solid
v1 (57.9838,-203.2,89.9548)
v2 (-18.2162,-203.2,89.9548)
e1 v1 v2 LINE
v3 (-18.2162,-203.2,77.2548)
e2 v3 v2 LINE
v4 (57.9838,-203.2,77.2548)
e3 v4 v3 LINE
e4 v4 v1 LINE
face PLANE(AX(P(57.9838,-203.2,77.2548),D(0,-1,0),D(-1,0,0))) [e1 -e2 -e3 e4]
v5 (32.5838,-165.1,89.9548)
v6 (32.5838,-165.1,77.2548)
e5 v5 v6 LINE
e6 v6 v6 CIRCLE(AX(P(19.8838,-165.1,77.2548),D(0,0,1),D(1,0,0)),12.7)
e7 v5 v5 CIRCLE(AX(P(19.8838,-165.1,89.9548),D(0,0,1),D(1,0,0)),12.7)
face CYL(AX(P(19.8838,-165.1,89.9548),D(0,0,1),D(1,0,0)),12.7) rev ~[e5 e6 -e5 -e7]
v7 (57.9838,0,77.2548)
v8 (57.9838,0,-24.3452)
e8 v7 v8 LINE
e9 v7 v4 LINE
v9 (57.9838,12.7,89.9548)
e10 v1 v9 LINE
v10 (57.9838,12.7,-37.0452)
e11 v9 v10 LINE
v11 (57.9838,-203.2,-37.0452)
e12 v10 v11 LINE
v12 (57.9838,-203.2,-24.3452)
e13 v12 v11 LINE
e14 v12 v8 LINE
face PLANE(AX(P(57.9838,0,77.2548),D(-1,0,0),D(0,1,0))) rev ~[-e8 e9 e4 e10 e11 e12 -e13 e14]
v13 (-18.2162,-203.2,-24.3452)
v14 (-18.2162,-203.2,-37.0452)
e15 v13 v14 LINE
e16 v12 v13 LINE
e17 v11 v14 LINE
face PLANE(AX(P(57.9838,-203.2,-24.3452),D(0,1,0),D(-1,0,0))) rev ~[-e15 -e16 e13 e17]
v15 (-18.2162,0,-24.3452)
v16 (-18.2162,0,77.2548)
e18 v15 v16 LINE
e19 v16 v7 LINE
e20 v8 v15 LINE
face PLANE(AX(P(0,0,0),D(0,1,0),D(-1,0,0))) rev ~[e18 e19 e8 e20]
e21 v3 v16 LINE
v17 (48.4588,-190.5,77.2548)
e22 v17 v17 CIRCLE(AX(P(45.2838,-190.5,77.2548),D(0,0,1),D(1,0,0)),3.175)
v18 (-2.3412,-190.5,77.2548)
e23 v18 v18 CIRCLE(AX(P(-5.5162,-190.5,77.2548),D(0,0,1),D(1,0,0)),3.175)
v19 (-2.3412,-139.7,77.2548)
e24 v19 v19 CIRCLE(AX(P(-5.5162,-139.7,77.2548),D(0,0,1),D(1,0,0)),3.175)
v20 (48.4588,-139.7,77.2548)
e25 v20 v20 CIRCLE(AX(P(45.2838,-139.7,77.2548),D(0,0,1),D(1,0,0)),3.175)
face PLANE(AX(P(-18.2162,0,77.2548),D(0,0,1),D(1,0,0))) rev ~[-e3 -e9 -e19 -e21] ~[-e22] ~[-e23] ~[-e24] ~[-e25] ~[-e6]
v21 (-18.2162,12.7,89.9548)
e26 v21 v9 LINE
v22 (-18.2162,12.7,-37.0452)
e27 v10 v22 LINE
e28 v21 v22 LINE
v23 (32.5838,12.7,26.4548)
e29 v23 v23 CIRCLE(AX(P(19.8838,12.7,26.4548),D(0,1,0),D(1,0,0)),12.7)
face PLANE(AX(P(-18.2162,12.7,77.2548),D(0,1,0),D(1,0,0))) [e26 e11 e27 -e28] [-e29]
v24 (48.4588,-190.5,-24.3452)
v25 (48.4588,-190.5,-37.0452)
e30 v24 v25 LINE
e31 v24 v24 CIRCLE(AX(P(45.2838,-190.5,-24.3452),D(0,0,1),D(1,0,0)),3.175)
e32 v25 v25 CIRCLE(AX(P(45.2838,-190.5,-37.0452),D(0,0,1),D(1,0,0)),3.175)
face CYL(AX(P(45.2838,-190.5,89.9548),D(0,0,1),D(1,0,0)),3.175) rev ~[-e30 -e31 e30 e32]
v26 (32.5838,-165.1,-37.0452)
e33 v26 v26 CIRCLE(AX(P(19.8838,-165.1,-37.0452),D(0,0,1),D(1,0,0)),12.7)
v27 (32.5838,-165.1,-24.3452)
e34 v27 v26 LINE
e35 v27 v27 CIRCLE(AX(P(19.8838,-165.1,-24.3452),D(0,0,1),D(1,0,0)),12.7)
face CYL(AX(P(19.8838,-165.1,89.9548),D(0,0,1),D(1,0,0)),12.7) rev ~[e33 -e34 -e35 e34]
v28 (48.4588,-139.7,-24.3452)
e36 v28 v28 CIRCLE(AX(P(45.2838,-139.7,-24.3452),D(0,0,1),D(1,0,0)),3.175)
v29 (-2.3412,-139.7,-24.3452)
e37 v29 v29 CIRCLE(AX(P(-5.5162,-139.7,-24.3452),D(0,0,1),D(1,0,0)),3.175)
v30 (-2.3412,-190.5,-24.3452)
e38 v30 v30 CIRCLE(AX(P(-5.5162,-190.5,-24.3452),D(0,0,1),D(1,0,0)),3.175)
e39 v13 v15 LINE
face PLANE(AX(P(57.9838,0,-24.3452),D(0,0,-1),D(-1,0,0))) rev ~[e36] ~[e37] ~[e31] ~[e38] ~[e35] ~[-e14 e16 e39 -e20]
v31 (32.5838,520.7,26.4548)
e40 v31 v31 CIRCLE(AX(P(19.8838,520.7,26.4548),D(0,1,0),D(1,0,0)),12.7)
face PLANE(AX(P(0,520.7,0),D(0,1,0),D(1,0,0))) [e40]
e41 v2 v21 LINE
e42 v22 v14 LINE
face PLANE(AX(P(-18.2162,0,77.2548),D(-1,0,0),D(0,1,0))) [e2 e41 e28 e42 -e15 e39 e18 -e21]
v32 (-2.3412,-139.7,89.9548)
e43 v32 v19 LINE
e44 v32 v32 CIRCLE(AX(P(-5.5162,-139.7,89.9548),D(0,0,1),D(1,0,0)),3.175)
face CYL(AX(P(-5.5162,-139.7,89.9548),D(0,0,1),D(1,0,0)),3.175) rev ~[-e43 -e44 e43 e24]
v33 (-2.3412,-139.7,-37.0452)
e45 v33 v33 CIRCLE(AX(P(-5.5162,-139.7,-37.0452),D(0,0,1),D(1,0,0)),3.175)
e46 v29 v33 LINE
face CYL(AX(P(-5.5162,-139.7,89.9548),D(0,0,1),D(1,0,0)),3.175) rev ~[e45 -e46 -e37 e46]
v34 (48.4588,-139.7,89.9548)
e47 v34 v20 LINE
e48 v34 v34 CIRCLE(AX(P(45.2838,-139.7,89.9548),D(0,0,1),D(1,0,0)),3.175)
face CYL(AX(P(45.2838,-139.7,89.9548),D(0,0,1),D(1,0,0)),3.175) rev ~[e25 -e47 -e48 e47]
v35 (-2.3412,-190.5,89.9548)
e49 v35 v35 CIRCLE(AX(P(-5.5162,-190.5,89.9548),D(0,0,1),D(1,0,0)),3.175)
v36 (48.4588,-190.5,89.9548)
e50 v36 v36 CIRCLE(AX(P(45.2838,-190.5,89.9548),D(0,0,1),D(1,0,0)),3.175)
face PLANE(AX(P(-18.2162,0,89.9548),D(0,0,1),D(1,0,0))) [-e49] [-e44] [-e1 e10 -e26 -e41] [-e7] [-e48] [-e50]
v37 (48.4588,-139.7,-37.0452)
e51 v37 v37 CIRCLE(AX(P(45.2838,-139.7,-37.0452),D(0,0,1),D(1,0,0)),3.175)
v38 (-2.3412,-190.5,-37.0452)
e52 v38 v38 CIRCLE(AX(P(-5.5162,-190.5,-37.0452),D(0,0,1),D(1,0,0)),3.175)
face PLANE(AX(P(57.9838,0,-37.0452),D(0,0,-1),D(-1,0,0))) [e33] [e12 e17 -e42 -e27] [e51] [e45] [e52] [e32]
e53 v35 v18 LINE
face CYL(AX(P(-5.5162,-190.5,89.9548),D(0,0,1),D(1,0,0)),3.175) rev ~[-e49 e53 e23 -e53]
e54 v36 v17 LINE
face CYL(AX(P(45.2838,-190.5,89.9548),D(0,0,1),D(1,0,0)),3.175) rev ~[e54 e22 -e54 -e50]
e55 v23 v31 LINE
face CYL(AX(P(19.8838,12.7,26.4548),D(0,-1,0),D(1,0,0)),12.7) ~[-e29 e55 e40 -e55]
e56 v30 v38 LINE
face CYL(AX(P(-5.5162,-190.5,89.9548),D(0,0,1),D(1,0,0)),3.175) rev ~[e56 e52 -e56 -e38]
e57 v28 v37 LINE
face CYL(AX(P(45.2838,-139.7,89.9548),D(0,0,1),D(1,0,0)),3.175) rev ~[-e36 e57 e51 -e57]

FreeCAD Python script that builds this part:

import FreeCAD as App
import Part
import Sketcher
Q = App.Units.Quantity


def add_polygon(sketch, points):
    """Adds a closed chain of lines whose ends are joined by coincident constraints."""
    first, n = sketch.GeometryCount, len(points)
    for a, b in zip(points, points[1:] + points[:1]):
        sketch.addGeometry(Part.LineSegment(App.Vector(*a, 0), App.Vector(*b, 0)), False)
    for i in range(n):
        sketch.addConstraint(Sketcher.Constraint("Coincident", first + i, 2, first + (i + 1) % n, 1))

doc = App.newDocument("Part")
body = doc.addObject("PartDesign::Body", "Body")

# Sketch on XZ plane
sketch1 = body.newObject("Sketcher::SketchObject", "Sketch")
sketch1.AttachmentSupport = (doc.getObject("XZ_Plane"), [""])
sketch1.MapMode = "FlatFace"
add_polygon(sketch1, [(-18.2162, -24.3452), (-18.2162, 77.2548), (57.9838, 77.2548), (57.9838, -24.3452)])  # lines 0-3
sketch1.addConstraint(Sketcher.Constraint("Vertical", 0))
sketch1.addConstraint(Sketcher.Constraint("Horizontal", 1))
sketch1.addConstraint(Sketcher.Constraint("Vertical", 2))
sketch1.addConstraint(Sketcher.Constraint("Horizontal", 3))
sketch1.addConstraint(Sketcher.Constraint("DistanceX", 1, 1, 1, 2, Q("3 in")))
sketch1.addConstraint(Sketcher.Constraint("DistanceY", 0, 1, 0, 2, Q("4 in")))
sketch1.addConstraint(Sketcher.Constraint("DistanceX", 0, 2, -1, 1, 18.2162))
sketch1.addConstraint(Sketcher.Constraint("DistanceY", -1, 1, 0, 2, 77.2548))
pad1 = body.newObject("PartDesign::Pad", "Pad")
pad1.Profile = sketch1
pad1.Length = Q("0.5 in")
pad1.Reversed = True

# Sketch on XY plane
sketch2 = body.newObject("Sketcher::SketchObject", "Sketch001")
sketch2.AttachmentSupport = (doc.getObject("XY_Plane"), [""])
sketch2.MapMode = "FlatFace"
sketch2.AttachmentOffset = App.Placement(App.Vector(0, 0, -24.3452), App.Rotation())
add_polygon(sketch2, [(-18.2162, -203.2), (-18.2162, 12.7), (57.9838, 12.7), (57.9838, -203.2)])  # lines 0-3
sketch2.addConstraint(Sketcher.Constraint("Vertical", 0))
sketch2.addConstraint(Sketcher.Constraint("Horizontal", 1))
sketch2.addConstraint(Sketcher.Constraint("Vertical", 2))
sketch2.addConstraint(Sketcher.Constraint("Horizontal", 3))
sketch2.addConstraint(Sketcher.Constraint("DistanceY", 2, 2, -1, 1, Q("8 in")))
sketch2.addConstraint(Sketcher.Constraint("DistanceX", 1, 1, 1, 2, Q("3 in")))
sketch2.addConstraint(Sketcher.Constraint("DistanceY", 0, 1, 0, 2, Q("8.5 in")))
sketch2.addConstraint(Sketcher.Constraint("DistanceX", 0, 2, -1, 1, 18.2162))
pad2 = body.newObject("PartDesign::Pad", "Pad001")
pad2.Profile = sketch2
pad2.Length = Q("0.5 in")
pad2.Reversed = True

# Sketch on XY plane
sketch3 = body.newObject("Sketcher::SketchObject", "Sketch002")
sketch3.AttachmentSupport = (doc.getObject("XY_Plane"), [""])
sketch3.MapMode = "FlatFace"
sketch3.AttachmentOffset = App.Placement(App.Vector(0, 0, 77.2548), App.Rotation())
add_polygon(sketch3, [(-18.2162, 12.7), (-18.2162, -203.2), (57.9838, -203.2), (57.9838, 12.7)])  # lines 0-3
sketch3.addConstraint(Sketcher.Constraint("Vertical", 0))
sketch3.addConstraint(Sketcher.Constraint("Horizontal", 1))
sketch3.addConstraint(Sketcher.Constraint("Vertical", 2))
sketch3.addConstraint(Sketcher.Constraint("Horizontal", 3))
sketch3.addConstraint(Sketcher.Constraint("DistanceX", 1, 1, 1, 2, Q("3 in")))
sketch3.addConstraint(Sketcher.Constraint("DistanceY", 0, 2, 0, 1, Q("8.5 in")))
sketch3.addConstraint(Sketcher.Constraint("DistanceY", 0, 2, -1, 1, Q("8 in")))
sketch3.addConstraint(Sketcher.Constraint("DistanceX", 0, 2, -1, 1, 18.2162))
pad3 = body.newObject("PartDesign::Pad", "Pad002")
pad3.Profile = sketch3
pad3.Length = Q("0.5 in")

# Sketch on XZ plane
sketch4 = body.newObject("Sketcher::SketchObject", "Sketch003")
sketch4.AttachmentSupport = (doc.getObject("XZ_Plane"), [""])
sketch4.MapMode = "FlatFace"
sketch4.AttachmentOffset = App.Placement(App.Vector(0, 0, -0.5 * 25.4), App.Rotation())
sketch4.addGeometry(Part.Circle(App.Vector(19.8838, 26.4548, 0), App.Vector(0, 0, 1), 12.7), False)
sketch4.addConstraint(Sketcher.Constraint("Diameter", 0, Q("1 in")))
sketch4.addConstraint(Sketcher.Constraint("DistanceX", -1, 1, 0, 3, 19.8838))
sketch4.addConstraint(Sketcher.Constraint("DistanceY", -1, 1, 0, 3, 26.4548))
pad4 = body.newObject("PartDesign::Pad", "Pad003")
pad4.Profile = sketch4
pad4.Length = Q("20 in")
pad4.Reversed = True

# Sketch on XY plane
sketch5 = body.newObject("Sketcher::SketchObject", "Sketch004")
sketch5.AttachmentSupport = (doc.getObject("XY_Plane"), [""])
sketch5.MapMode = "FlatFace"
sketch5.AttachmentOffset = App.Placement(App.Vector(0, 0, 89.9548), App.Rotation())
sketch5.addGeometry(Part.Circle(App.Vector(19.8838, -165.1, 0), App.Vector(0, 0, 1), 12.7), False)
sketch5.addConstraint(Sketcher.Constraint("Diameter", 0, Q("1 in")))
sketch5.addConstraint(Sketcher.Constraint("DistanceY", 0, 3, -1, 1, Q("6.5 in")))
sketch5.addConstraint(Sketcher.Constraint("DistanceX", -1, 1, 0, 3, 19.8838))
pocket1 = body.newObject("PartDesign::Pocket", "Pocket")
pocket1.Profile = sketch5
pocket1.Type = "ThroughAll"

# Sketch on XY plane
sketch6 = body.newObject("Sketcher::SketchObject", "Sketch005")
sketch6.AttachmentSupport = (doc.getObject("XY_Plane"), [""])
sketch6.MapMode = "FlatFace"
sketch6.AttachmentOffset = App.Placement(App.Vector(0, 0, 89.9548), App.Rotation())
sketch6.addGeometry(Part.Circle(App.Vector(-5.5162, -139.7, 0), App.Vector(0, 0, 1), 3.175), False)
sketch6.addGeometry(Part.Circle(App.Vector(45.2838, -139.7, 0), App.Vector(0, 0, 1), 3.175), False)
sketch6.addGeometry(Part.Circle(App.Vector(45.2838, -190.5, 0), App.Vector(0, 0, 1), 3.175), False)
sketch6.addGeometry(Part.Circle(App.Vector(-5.5162, -190.5, 0), App.Vector(0, 0, 1), 3.175), False)
sketch6.addConstraint(Sketcher.Constraint("Equal", 0, 1))
sketch6.addConstraint(Sketcher.Constraint("Equal", 1, 2))
sketch6.addConstraint(Sketcher.Constraint("Equal", 2, 3))
sketch6.addConstraint(Sketcher.Constraint("Horizontal", 0, 3, 1, 3))
sketch6.addConstraint(Sketcher.Constraint("Horizontal", 2, 3, 3, 3))
sketch6.addConstraint(Sketcher.Constraint("Vertical", 1, 3, 2, 3))
sketch6.addConstraint(Sketcher.Constraint("Vertical", 0, 3, 3, 3))
sketch6.addConstraint(Sketcher.Constraint("Diameter", 0, Q("0.25 in")))
sketch6.addConstraint(Sketcher.Constraint("DistanceX", 0, 3, 1, 3, Q("2 in")))
sketch6.addConstraint(Sketcher.Constraint("DistanceY", 2, 3, 1, 3, Q("2 in")))
sketch6.addConstraint(Sketcher.Constraint("DistanceY", 0, 3, -1, 1, Q("5.5 in")))
sketch6.addConstraint(Sketcher.Constraint("DistanceX", 0, 3, -1, 1, 5.5162))
pocket2 = body.newObject("PartDesign::Pocket", "Pocket001")
pocket2.Profile = sketch6
pocket2.Type = "ThroughAll"

doc.recompute()
